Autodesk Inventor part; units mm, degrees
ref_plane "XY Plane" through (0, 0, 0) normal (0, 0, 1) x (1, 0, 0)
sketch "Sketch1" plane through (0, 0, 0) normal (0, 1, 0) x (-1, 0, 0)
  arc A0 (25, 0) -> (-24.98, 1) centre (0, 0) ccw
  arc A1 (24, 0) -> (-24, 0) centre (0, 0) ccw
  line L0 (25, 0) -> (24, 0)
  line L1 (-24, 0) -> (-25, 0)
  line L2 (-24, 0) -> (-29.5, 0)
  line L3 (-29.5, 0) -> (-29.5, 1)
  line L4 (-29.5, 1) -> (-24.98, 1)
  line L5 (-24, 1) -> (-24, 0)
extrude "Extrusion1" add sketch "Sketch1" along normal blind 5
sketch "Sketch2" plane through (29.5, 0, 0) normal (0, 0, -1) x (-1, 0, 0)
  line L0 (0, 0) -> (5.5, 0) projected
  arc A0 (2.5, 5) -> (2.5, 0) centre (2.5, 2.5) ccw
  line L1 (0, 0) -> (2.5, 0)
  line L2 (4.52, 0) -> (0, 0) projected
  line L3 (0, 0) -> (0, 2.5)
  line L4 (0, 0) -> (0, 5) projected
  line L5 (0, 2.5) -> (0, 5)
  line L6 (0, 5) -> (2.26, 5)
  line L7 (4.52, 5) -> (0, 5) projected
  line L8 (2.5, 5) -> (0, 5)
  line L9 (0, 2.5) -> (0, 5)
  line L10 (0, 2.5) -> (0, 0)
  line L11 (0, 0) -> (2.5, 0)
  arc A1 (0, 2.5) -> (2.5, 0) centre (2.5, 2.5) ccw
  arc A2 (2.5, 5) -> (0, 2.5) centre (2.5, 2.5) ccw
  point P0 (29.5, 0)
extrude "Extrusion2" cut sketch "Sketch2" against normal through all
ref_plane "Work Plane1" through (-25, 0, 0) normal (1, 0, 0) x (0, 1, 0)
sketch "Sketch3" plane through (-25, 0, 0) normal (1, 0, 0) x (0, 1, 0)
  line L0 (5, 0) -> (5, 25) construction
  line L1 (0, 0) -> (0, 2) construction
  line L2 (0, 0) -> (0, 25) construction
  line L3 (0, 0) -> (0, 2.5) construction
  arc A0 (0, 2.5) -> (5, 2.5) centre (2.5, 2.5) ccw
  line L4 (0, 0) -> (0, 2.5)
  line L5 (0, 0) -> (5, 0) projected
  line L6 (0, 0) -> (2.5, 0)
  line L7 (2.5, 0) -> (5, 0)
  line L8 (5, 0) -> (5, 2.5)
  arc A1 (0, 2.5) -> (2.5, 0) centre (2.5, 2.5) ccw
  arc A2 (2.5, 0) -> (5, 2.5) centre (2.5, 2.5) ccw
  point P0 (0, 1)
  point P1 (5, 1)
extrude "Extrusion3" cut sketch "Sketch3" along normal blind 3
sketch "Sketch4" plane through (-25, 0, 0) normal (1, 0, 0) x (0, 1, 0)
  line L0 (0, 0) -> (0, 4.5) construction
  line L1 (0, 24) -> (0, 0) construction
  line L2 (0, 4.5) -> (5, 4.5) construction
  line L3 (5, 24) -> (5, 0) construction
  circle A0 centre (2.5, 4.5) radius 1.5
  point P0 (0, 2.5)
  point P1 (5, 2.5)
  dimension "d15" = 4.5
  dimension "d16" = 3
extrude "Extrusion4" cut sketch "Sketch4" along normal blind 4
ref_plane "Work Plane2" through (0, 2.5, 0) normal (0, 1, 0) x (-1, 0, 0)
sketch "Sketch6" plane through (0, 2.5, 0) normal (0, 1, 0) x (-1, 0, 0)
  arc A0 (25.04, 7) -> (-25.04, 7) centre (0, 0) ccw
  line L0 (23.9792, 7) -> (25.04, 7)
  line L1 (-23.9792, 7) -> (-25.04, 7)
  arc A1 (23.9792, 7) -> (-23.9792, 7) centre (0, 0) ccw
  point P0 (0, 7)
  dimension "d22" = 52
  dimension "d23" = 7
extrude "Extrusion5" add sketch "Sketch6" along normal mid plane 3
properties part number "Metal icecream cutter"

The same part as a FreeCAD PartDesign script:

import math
import FreeCAD as App
import Part
import Sketcher

V = App.Vector

doc = App.newDocument("Part")
body = doc.addObject("PartDesign::Body", "Body")

# Sketch on XZ plane
sketch1 = body.newObject("Sketcher::SketchObject", "Sketch")
sketch1.AttachmentSupport = (doc.getObject("XZ_Plane"), [""])
sketch1.MapMode = "FlatFace"
sketch1.addGeometry([
    Part.LineSegment(V(-24, 0, 0), V(-25, 0, 0)),  # 0
    Part.ArcOfCircle(Part.Circle(V(0, 0, 0), V(0, 0, 1), 25), math.radians(2), math.radians(180)),  # 1
    Part.LineSegment(V(25, 1, 0), V(29.5, 1, 0)),  # 2
    Part.LineSegment(V(29.5, 1, 0), V(29.5, 0, 0)),  # 3
    Part.LineSegment(V(29.5, 0, 0), V(24, 0, 0)),  # 4
    Part.ArcOfCircle(Part.Circle(V(0, 0, 0), V(0, 0, 1), 24), math.radians(0), math.radians(180)),  # 5
], False)
sketch1.addConstraint([
    Sketcher.Constraint("Coincident", 0, 2, 1, 2),
    Sketcher.Constraint("Coincident", 1, 1, 2, 1),
    Sketcher.Constraint("Coincident", 2, 2, 3, 1),
    Sketcher.Constraint("Coincident", 3, 2, 4, 1),
    Sketcher.Constraint("Coincident", 4, 2, 5, 1),
    Sketcher.Constraint("Coincident", 5, 2, 0, 1),
    Sketcher.Constraint("Horizontal", 0),
    Sketcher.Constraint("Horizontal", 2),
    Sketcher.Constraint("Vertical", 3),
    Sketcher.Constraint("Horizontal", 4),
    Sketcher.Constraint("Coincident", 1, 3, -1, 1),
    Sketcher.Constraint("Coincident", 5, 3, -1, 1),
    Sketcher.Constraint("PointOnObject", 0, 2, -1),
    Sketcher.Constraint("PointOnObject", 3, 2, -1),
    Sketcher.Constraint("Equal", 0, 3),
    Sketcher.Constraint("Radius", 1, 25.0),
    Sketcher.Constraint("Radius", 5, 24.0),
    Sketcher.Constraint("DistanceX", 4, 2, 4, 1, 5.5),
])
pad1 = body.newObject("PartDesign::Pad", "Pad")
pad1.Profile = sketch1
pad1.Length = 5
pad1.Reversed = True

# Sketch on XY plane
sketch2 = body.newObject("Sketcher::SketchObject", "Sketch001")
sketch2.AttachmentSupport = (doc.getObject("XY_Plane"), [""])
sketch2.MapMode = "FlatFace"
sketch2.addGeometry([
    Part.LineSegment(V(29.5, 2.5, 0), V(29.5, 0, 0)),  # 0
    Part.LineSegment(V(29.5, 0, 0), V(27, 0, 0)),  # 1
    Part.ArcOfCircle(Part.Circle(V(27, 2.5, 0), V(0, 0, 1), 2.5), math.radians(-90), math.radians(0)),  # 2
    Part.LineSegment(V(29.5, 5, 0), V(29.5, 2.5, 0)),  # 3
    Part.ArcOfCircle(Part.Circle(V(27, 2.5, 0), V(0, 0, 1), 2.5), math.radians(0), math.radians(90)),  # 4
    Part.LineSegment(V(27, 5, 0), V(29.5, 5, 0)),  # 5
], False)
sketch2.addConstraint([
    Sketcher.Constraint("Coincident", 0, 2, 1, 1),
    Sketcher.Constraint("Tangent", 1, 2, 2, 1),
    Sketcher.Constraint("Tangent", 2, 2, 0, 1),
    Sketcher.Constraint("Tangent", 3, 2, 4, 1),
    Sketcher.Constraint("Tangent", 4, 2, 5, 1),
    Sketcher.Constraint("Coincident", 5, 2, 3, 1),
    Sketcher.Constraint("Vertical", 0),
    Sketcher.Constraint("Horizontal", 1),
    Sketcher.Constraint("Vertical", 3),
    Sketcher.Constraint("Horizontal", 5),
    Sketcher.Constraint("Coincident", 4, 3, 2, 3),
    Sketcher.Constraint("Equal", 2, 4),
    Sketcher.Constraint("PointOnObject", 0, 2, -1),
    Sketcher.Constraint("Radius", 2, 2.5),
    Sketcher.Constraint("DistanceX", -1, 1, 2, 3, 27.0),
])
pocket1 = body.newObject("PartDesign::Pocket", "Pocket")
pocket1.Profile = sketch2
pocket1.Type = "ThroughAll"
pocket1.Reversed = True

# Sketch on YZ plane
sketch3 = body.newObject("Sketcher::SketchObject", "Sketch002")
sketch3.AttachmentSupport = (doc.getObject("YZ_Plane"), [""])
sketch3.MapMode = "FlatFace"
sketch3.AttachmentOffset = App.Placement(V(0, 0, -25), App.Rotation())
sketch3.addGeometry([
    Part.ArcOfCircle(Part.Circle(V(2.5, 2.5, 0), V(0, 0, 1), 2.5), math.radians(-90), math.radians(0)),  # 0
    Part.LineSegment(V(2.5, 0, 0), V(5, 0, 0)),  # 1
    Part.LineSegment(V(5, 0, 0), V(5, 2.5, 0)),  # 2
    Part.ArcOfCircle(Part.Circle(V(2.5, 2.5, 0), V(0, 0, 1), 2.5), math.radians(180), math.radians(270)),  # 3
    Part.LineSegment(V(0, 2.5, 0), V(0, 0, 0)),  # 4
    Part.LineSegment(V(0, 0, 0), V(2.5, 0, 0)),  # 5
], False)
sketch3.addConstraint([
    Sketcher.Constraint("Tangent", 0, 1, 1, 1),
    Sketcher.Constraint("Coincident", 1, 2, 2, 1),
    Sketcher.Constraint("Tangent", 2, 2, 0, 2),
    Sketcher.Constraint("Tangent", 3, 1, 4, 1),
    Sketcher.Constraint("Coincident", 4, 2, 5, 1),
    Sketcher.Constraint("Tangent", 5, 2, 3, 2),
    Sketcher.Constraint("Horizontal", 1),
    Sketcher.Constraint("Vertical", 2),
    Sketcher.Constraint("Vertical", 4),
    Sketcher.Constraint("Horizontal", 5),
    Sketcher.Constraint("Coincident", 4, 2, -1, 1),
    Sketcher.Constraint("Coincident", 3, 3, 0, 3),
    Sketcher.Constraint("Equal", 0, 3),
    Sketcher.Constraint("Radius", 0, 2.5),
])
pocket2 = body.newObject("PartDesign::Pocket", "Pocket001")
pocket2.Profile = sketch3
pocket2.Length = 3
pocket2.Reversed = True

# Sketch on YZ plane
sketch4 = body.newObject("Sketcher::SketchObject", "Sketch003")
sketch4.AttachmentSupport = (doc.getObject("YZ_Plane"), [""])
sketch4.MapMode = "FlatFace"
sketch4.AttachmentOffset = App.Placement(V(0, 0, -25), App.Rotation())
sketch4.addGeometry(Part.Circle(V(2.5, 4.5, 0), V(0, 0, 1), 1.5), False)
sketch4.addConstraint([
    Sketcher.Constraint("Diameter", 0, 3.0),
    Sketcher.Constraint("DistanceY", -1, 1, 0, 3, 4.5),
    Sketcher.Constraint("DistanceX", -1, 1, 0, 3, 2.5),
])
pocket3 = body.newObject("PartDesign::Pocket", "Pocket002")
pocket3.Profile = sketch4
pocket3.Length = 4
pocket3.Reversed = True

# Sketch on XZ plane
sketch5 = body.newObject("Sketcher::SketchObject", "Sketch004")
sketch5.AttachmentSupport = (doc.getObject("XZ_Plane"), [""])
sketch5.MapMode = "FlatFace"
sketch5.AttachmentOffset = App.Placement(V(0, 0, -2.5), App.Rotation())
sketch5.addGeometry([
    Part.LineSegment(V(-24, 7, 0), V(-25, 7, 0)),
    Part.ArcOfCircle(Part.Circle(V(0, 0, 0), V(0, 0, 1), 26), math.radians(16), math.radians(164)),
    Part.LineSegment(V(25, 7, 0), V(24, 7, 0)),
    Part.ArcOfCircle(Part.Circle(V(0, 0, 0), V(0, 0, 1), 25), math.radians(16), math.radians(164)),
], False)
sketch5.addConstraint([
    Sketcher.Constraint("Coincident", 0, 2, 1, 2),
    Sketcher.Constraint("Coincident", 1, 1, 2, 1),
    Sketcher.Constraint("Coincident", 2, 2, 3, 1),
    Sketcher.Constraint("Coincident", 3, 2, 0, 1),
    Sketcher.Constraint("Horizontal", 0),
    Sketcher.Constraint("Horizontal", 2),
    Sketcher.Constraint("Coincident", 1, 3, -1, 1),
    Sketcher.Constraint("Coincident", 3, 3, -1, 1),
    Sketcher.Constraint("Horizontal", 0, 2, 1, 1),
    Sketcher.Constraint("Radius", 1, 26.0),
    Sketcher.Constraint("DistanceY", -1, 1, 0, 2, 7.0),
    Sketcher.Constraint("Radius", 3, 24.98),
])
pad2 = body.newObject("PartDesign::Pad", "Pad001")
pad2.Profile = sketch5
pad2.Length = 3
pad2.Midplane = True

doc.recompute()
